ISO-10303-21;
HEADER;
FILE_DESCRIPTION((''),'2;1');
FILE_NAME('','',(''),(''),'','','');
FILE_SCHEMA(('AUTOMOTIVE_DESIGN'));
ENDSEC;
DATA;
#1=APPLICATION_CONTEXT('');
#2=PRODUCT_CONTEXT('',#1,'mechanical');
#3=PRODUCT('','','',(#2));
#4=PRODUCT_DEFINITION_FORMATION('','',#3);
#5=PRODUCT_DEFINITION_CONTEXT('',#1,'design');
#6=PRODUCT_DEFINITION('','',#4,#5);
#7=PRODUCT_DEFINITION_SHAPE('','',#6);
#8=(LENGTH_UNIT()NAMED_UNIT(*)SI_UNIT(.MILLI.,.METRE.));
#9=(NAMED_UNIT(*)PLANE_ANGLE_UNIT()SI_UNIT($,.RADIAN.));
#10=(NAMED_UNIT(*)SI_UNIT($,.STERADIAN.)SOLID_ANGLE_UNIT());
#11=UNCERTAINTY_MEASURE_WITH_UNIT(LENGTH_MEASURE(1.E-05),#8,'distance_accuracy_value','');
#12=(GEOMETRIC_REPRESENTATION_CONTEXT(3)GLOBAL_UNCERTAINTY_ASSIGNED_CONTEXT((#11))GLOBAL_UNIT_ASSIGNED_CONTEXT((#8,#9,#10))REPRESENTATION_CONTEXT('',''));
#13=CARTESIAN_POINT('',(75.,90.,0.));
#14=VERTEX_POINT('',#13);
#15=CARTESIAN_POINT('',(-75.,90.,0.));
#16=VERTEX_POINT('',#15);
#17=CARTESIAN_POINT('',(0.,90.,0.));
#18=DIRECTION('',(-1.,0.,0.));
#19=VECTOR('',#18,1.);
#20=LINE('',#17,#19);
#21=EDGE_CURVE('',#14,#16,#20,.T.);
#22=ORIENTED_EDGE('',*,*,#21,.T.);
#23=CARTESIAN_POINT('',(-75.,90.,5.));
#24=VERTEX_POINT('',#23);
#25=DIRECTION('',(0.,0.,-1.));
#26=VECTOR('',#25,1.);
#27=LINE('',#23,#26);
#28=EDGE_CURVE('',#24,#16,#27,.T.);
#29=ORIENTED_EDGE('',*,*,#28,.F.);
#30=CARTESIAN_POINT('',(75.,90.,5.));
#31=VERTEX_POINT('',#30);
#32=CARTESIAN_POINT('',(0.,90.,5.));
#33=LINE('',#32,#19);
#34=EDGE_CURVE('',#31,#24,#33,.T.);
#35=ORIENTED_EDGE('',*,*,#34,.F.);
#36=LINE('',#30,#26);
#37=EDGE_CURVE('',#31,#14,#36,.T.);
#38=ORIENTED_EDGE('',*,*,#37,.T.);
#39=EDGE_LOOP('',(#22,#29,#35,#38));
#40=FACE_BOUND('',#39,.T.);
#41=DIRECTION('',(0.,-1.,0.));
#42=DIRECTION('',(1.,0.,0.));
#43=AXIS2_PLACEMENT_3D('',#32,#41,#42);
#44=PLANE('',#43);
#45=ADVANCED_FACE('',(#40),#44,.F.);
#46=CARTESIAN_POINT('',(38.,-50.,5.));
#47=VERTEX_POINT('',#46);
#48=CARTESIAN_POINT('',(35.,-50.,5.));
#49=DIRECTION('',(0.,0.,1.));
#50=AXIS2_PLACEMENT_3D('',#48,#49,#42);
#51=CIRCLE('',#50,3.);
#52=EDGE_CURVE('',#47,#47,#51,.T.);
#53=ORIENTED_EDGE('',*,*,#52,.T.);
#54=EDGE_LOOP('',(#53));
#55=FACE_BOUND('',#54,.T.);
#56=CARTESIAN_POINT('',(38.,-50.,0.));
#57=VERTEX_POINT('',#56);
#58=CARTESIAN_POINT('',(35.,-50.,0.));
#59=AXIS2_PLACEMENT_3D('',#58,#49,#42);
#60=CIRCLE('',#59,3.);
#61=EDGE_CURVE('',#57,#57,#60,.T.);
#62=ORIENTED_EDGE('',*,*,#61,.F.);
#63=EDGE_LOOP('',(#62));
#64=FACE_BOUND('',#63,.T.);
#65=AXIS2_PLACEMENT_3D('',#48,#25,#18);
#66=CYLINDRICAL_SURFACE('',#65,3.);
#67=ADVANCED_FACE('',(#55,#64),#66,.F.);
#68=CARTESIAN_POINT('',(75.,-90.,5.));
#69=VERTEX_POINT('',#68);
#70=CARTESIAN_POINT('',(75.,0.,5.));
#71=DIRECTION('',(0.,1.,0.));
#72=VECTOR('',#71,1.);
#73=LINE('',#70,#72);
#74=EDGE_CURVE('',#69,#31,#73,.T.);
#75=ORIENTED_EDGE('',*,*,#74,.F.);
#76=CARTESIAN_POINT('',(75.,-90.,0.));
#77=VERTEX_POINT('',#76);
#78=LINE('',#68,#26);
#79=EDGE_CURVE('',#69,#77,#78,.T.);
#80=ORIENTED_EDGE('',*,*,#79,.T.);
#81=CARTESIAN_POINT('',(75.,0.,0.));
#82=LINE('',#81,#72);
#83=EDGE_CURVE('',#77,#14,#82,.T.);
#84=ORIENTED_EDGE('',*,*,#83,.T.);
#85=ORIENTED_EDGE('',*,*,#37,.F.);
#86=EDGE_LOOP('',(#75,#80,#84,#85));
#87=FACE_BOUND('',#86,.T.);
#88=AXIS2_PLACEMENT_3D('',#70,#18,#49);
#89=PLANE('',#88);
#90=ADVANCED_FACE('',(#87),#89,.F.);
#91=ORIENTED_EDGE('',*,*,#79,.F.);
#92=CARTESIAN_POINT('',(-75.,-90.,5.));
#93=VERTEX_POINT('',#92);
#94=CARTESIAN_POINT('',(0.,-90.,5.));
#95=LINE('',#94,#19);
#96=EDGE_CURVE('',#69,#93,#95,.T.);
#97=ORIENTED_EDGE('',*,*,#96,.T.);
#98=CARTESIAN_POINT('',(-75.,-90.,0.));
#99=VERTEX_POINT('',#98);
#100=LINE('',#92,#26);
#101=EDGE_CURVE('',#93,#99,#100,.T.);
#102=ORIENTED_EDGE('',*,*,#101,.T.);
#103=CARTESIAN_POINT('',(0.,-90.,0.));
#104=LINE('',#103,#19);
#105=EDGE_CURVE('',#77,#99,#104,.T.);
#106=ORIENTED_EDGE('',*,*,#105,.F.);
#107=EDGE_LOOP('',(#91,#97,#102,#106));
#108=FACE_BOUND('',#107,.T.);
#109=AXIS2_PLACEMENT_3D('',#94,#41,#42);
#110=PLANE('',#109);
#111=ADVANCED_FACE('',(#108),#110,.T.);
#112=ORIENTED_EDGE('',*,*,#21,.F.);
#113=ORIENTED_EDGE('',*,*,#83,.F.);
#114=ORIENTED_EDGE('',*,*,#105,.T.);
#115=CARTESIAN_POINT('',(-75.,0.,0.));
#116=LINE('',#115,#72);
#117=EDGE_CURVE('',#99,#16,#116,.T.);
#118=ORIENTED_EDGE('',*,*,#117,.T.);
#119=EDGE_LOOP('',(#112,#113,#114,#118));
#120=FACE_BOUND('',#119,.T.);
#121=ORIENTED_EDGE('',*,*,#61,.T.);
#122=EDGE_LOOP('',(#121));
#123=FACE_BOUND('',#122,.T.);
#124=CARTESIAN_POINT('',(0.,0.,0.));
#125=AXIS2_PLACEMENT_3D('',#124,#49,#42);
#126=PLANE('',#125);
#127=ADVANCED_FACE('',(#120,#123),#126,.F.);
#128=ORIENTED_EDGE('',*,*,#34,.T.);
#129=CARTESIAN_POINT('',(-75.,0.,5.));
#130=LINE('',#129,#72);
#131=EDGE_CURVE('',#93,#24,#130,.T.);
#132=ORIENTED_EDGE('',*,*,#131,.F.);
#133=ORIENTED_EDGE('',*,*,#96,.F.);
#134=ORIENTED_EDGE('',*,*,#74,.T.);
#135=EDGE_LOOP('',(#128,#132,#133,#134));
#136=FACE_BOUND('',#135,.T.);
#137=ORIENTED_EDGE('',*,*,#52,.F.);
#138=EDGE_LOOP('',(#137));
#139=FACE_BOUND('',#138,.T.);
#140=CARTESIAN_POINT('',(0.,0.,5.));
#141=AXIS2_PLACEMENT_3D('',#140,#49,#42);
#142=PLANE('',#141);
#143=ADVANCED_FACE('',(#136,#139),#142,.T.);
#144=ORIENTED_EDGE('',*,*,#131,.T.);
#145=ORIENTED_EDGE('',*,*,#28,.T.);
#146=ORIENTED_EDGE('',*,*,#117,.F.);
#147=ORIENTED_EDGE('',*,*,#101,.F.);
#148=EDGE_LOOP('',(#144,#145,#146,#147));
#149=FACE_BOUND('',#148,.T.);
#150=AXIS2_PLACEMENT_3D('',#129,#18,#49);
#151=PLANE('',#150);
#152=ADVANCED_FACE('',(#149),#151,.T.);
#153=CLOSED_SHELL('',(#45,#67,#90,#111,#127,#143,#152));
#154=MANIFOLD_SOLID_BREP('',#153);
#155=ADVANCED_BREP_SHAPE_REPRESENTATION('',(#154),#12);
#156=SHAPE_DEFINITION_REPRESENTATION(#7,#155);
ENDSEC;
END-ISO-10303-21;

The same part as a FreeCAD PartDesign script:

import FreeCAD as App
import Part
import Sketcher

V = App.Vector


def add_polygon(sketch, points):
    """Adds a closed chain of lines whose ends are joined by coincident constraints."""
    first, n = sketch.GeometryCount, len(points)
    for a, b in zip(points, points[1:] + points[:1]):
        sketch.addGeometry(Part.LineSegment(App.Vector(*a, 0), App.Vector(*b, 0)), False)
    for i in range(n):
        sketch.addConstraint(Sketcher.Constraint("Coincident", first + i, 2, first + (i + 1) % n, 1))

doc = App.newDocument("Part")
body = doc.addObject("PartDesign::Body", "Body")

# Sketch on XY plane
sketch1 = body.newObject("Sketcher::SketchObject", "Sketch")
sketch1.AttachmentSupport = (doc.getObject("XY_Plane"), [""])
sketch1.MapMode = "FlatFace"
add_polygon(sketch1, [(75, 90), (-75, 90), (-75, -90), (75, -90)])  # lines 0-3
sketch1.addGeometry(Part.Circle(V(35, -50, 0), V(0, 0, 1), 3), False)  # 4
sketch1.addConstraint(Sketcher.Constraint("Horizontal", 0))
sketch1.addConstraint(Sketcher.Constraint("Vertical", 1))
sketch1.addConstraint(Sketcher.Constraint("Horizontal", 2))
sketch1.addConstraint(Sketcher.Constraint("Vertical", 3))
sketch1.addConstraint(Sketcher.Constraint("Symmetric", 0, 2, 2, 2, -1, 1))
sketch1.addConstraint(Sketcher.Constraint("Diameter", 4, 6.0))
sketch1.addConstraint(Sketcher.Constraint("DistanceX", 0, 2, 0, 1, 150.0))
sketch1.addConstraint(Sketcher.Constraint("DistanceY", 1, 2, 1, 1, 180.0))
sketch1.addConstraint(Sketcher.Constraint("DistanceX", -1, 1, 4, 3, 35.0))
sketch1.addConstraint(Sketcher.Constraint("DistanceY", 4, 3, -1, 1, 50.0))
pad1 = body.newObject("PartDesign::Pad", "Pad")
pad1.Profile = sketch1
pad1.Length = 5

doc.recompute()
